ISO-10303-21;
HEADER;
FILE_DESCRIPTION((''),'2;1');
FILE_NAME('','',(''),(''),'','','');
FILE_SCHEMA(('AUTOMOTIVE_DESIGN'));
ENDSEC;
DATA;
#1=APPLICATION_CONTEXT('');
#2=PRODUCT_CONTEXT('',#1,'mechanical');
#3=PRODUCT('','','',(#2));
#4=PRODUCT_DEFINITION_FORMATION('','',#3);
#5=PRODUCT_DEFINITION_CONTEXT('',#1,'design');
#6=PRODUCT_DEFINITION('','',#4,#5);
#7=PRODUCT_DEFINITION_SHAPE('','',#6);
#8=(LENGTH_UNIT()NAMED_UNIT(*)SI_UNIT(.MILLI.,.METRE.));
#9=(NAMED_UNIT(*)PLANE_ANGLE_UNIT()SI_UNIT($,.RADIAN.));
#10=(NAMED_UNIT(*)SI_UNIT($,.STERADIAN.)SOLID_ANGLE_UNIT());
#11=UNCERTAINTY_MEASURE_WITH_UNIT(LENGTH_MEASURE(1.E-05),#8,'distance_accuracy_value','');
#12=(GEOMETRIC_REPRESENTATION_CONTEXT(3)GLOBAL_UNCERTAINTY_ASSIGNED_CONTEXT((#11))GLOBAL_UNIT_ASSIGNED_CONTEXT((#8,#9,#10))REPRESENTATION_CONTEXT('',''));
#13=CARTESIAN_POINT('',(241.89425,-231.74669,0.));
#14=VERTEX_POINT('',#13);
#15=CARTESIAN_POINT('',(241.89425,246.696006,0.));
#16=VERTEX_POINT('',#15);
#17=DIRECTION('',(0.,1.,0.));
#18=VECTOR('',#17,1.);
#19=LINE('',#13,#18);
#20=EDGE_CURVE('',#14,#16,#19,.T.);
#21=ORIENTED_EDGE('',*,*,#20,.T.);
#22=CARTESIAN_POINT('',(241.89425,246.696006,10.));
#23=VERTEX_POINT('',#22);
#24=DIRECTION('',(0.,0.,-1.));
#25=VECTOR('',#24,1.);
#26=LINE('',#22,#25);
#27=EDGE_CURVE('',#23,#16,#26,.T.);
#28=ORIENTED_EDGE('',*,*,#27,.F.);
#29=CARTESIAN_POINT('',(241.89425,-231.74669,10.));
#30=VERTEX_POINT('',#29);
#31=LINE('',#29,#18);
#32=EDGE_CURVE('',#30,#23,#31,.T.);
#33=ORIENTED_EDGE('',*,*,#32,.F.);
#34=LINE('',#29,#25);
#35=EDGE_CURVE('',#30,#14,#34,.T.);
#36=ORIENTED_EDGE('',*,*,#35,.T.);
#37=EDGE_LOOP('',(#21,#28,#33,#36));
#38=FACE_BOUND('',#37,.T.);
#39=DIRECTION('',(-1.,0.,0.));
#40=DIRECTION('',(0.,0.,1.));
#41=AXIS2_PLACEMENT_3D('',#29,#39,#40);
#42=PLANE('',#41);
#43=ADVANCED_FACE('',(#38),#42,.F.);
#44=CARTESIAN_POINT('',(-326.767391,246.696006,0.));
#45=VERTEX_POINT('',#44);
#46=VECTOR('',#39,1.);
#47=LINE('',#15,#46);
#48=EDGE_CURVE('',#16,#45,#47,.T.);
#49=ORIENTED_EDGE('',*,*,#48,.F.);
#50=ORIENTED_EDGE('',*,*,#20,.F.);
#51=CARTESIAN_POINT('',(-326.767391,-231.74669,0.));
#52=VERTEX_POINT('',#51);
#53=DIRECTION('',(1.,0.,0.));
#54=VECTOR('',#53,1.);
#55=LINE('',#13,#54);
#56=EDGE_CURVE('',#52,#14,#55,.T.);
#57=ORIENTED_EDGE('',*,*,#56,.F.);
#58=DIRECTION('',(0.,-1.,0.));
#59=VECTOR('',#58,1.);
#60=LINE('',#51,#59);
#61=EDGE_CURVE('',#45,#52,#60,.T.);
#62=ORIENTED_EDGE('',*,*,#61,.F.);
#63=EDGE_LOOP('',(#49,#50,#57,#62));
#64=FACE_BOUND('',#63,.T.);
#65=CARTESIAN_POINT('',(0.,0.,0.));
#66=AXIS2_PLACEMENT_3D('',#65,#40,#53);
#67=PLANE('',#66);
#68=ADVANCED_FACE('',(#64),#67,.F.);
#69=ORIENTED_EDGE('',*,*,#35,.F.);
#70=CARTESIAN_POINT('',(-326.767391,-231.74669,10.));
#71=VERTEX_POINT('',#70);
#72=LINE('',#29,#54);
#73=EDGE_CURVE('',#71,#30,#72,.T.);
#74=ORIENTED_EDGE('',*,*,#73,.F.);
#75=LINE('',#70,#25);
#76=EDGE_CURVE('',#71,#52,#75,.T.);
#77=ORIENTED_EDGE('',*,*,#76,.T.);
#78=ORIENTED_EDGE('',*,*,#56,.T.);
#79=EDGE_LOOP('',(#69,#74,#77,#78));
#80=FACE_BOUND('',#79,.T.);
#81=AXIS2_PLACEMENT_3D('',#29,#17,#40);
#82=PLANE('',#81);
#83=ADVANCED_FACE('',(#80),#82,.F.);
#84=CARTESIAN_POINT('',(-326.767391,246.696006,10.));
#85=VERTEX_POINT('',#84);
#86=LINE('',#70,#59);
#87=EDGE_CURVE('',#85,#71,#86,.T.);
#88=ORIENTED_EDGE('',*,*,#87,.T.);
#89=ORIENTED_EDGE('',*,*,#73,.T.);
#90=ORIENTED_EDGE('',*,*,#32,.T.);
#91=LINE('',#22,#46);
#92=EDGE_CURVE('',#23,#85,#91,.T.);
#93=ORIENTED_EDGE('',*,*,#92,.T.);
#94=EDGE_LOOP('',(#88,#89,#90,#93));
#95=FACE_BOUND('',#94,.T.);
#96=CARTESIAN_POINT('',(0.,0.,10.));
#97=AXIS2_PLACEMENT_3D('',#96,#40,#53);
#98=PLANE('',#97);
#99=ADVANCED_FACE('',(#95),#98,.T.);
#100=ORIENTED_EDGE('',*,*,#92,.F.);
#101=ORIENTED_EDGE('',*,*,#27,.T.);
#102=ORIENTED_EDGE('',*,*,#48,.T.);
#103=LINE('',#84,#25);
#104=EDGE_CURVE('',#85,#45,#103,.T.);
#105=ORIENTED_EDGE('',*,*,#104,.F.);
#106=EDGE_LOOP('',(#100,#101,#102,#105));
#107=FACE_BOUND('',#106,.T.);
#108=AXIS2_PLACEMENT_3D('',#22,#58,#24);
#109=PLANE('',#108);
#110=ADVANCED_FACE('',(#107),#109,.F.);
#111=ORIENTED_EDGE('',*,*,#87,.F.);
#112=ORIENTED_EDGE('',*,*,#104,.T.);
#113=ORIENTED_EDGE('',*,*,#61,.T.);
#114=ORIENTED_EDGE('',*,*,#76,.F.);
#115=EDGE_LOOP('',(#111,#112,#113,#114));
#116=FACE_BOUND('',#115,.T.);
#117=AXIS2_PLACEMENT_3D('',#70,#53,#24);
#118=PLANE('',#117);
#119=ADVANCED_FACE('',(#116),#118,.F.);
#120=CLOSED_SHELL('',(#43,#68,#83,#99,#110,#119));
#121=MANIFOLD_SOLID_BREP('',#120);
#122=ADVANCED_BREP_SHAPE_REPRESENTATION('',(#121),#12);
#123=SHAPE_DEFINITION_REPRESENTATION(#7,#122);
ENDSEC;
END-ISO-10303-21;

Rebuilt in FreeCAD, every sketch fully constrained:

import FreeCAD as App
import Part
import Sketcher
from FreeCAD import Vector

doc = App.newDocument("Part")
body = doc.addObject("PartDesign::Body", "Body")

sketch1 = doc.addObject("Sketcher::SketchObject", "Sketch")
body.addObject(sketch1)
sketch1.AttachmentSupport = (doc.XY_Plane, [""])
sketch1.MapMode = "FlatFace"
sketch1.addGeometry(Part.LineSegment(Vector(-327, 247, 0), Vector(-327, -232, 0)), False)
sketch1.addGeometry(Part.LineSegment(Vector(-327, -232, 0), Vector(242, -232, 0)), False)
sketch1.addGeometry(Part.LineSegment(Vector(242, -232, 0), Vector(242, 247, 0)), False)
sketch1.addGeometry(Part.LineSegment(Vector(242, 247, 0), Vector(-327, 247, 0)), False)
sketch1.addConstraint(Sketcher.Constraint("Coincident", 0, 2, 1, 1))
sketch1.addConstraint(Sketcher.Constraint("Coincident", 1, 2, 2, 1))
sketch1.addConstraint(Sketcher.Constraint("Coincident", 2, 2, 3, 1))
sketch1.addConstraint(Sketcher.Constraint("Coincident", 3, 2, 0, 1))
sketch1.addConstraint(Sketcher.Constraint("Vertical", 0))
sketch1.addConstraint(Sketcher.Constraint("Horizontal", 1))
sketch1.addConstraint(Sketcher.Constraint("Vertical", 2))
sketch1.addConstraint(Sketcher.Constraint("Horizontal", 3))
sketch1.addConstraint(Sketcher.Constraint("DistanceX", 1, 1, 1, 2, 568.661642))
sketch1.addConstraint(Sketcher.Constraint("DistanceY", 0, 2, 0, 1, 478.442696))
sketch1.addConstraint(Sketcher.Constraint("DistanceX", 0, 2, -1, 1, 326.767391))
sketch1.addConstraint(Sketcher.Constraint("DistanceY", 0, 2, -1, 1, 231.74669))
pad1 = doc.addObject("PartDesign::Pad", "Pad")
body.addObject(pad1)
pad1.Profile = sketch1
pad1.Length = 10

doc.recompute()
